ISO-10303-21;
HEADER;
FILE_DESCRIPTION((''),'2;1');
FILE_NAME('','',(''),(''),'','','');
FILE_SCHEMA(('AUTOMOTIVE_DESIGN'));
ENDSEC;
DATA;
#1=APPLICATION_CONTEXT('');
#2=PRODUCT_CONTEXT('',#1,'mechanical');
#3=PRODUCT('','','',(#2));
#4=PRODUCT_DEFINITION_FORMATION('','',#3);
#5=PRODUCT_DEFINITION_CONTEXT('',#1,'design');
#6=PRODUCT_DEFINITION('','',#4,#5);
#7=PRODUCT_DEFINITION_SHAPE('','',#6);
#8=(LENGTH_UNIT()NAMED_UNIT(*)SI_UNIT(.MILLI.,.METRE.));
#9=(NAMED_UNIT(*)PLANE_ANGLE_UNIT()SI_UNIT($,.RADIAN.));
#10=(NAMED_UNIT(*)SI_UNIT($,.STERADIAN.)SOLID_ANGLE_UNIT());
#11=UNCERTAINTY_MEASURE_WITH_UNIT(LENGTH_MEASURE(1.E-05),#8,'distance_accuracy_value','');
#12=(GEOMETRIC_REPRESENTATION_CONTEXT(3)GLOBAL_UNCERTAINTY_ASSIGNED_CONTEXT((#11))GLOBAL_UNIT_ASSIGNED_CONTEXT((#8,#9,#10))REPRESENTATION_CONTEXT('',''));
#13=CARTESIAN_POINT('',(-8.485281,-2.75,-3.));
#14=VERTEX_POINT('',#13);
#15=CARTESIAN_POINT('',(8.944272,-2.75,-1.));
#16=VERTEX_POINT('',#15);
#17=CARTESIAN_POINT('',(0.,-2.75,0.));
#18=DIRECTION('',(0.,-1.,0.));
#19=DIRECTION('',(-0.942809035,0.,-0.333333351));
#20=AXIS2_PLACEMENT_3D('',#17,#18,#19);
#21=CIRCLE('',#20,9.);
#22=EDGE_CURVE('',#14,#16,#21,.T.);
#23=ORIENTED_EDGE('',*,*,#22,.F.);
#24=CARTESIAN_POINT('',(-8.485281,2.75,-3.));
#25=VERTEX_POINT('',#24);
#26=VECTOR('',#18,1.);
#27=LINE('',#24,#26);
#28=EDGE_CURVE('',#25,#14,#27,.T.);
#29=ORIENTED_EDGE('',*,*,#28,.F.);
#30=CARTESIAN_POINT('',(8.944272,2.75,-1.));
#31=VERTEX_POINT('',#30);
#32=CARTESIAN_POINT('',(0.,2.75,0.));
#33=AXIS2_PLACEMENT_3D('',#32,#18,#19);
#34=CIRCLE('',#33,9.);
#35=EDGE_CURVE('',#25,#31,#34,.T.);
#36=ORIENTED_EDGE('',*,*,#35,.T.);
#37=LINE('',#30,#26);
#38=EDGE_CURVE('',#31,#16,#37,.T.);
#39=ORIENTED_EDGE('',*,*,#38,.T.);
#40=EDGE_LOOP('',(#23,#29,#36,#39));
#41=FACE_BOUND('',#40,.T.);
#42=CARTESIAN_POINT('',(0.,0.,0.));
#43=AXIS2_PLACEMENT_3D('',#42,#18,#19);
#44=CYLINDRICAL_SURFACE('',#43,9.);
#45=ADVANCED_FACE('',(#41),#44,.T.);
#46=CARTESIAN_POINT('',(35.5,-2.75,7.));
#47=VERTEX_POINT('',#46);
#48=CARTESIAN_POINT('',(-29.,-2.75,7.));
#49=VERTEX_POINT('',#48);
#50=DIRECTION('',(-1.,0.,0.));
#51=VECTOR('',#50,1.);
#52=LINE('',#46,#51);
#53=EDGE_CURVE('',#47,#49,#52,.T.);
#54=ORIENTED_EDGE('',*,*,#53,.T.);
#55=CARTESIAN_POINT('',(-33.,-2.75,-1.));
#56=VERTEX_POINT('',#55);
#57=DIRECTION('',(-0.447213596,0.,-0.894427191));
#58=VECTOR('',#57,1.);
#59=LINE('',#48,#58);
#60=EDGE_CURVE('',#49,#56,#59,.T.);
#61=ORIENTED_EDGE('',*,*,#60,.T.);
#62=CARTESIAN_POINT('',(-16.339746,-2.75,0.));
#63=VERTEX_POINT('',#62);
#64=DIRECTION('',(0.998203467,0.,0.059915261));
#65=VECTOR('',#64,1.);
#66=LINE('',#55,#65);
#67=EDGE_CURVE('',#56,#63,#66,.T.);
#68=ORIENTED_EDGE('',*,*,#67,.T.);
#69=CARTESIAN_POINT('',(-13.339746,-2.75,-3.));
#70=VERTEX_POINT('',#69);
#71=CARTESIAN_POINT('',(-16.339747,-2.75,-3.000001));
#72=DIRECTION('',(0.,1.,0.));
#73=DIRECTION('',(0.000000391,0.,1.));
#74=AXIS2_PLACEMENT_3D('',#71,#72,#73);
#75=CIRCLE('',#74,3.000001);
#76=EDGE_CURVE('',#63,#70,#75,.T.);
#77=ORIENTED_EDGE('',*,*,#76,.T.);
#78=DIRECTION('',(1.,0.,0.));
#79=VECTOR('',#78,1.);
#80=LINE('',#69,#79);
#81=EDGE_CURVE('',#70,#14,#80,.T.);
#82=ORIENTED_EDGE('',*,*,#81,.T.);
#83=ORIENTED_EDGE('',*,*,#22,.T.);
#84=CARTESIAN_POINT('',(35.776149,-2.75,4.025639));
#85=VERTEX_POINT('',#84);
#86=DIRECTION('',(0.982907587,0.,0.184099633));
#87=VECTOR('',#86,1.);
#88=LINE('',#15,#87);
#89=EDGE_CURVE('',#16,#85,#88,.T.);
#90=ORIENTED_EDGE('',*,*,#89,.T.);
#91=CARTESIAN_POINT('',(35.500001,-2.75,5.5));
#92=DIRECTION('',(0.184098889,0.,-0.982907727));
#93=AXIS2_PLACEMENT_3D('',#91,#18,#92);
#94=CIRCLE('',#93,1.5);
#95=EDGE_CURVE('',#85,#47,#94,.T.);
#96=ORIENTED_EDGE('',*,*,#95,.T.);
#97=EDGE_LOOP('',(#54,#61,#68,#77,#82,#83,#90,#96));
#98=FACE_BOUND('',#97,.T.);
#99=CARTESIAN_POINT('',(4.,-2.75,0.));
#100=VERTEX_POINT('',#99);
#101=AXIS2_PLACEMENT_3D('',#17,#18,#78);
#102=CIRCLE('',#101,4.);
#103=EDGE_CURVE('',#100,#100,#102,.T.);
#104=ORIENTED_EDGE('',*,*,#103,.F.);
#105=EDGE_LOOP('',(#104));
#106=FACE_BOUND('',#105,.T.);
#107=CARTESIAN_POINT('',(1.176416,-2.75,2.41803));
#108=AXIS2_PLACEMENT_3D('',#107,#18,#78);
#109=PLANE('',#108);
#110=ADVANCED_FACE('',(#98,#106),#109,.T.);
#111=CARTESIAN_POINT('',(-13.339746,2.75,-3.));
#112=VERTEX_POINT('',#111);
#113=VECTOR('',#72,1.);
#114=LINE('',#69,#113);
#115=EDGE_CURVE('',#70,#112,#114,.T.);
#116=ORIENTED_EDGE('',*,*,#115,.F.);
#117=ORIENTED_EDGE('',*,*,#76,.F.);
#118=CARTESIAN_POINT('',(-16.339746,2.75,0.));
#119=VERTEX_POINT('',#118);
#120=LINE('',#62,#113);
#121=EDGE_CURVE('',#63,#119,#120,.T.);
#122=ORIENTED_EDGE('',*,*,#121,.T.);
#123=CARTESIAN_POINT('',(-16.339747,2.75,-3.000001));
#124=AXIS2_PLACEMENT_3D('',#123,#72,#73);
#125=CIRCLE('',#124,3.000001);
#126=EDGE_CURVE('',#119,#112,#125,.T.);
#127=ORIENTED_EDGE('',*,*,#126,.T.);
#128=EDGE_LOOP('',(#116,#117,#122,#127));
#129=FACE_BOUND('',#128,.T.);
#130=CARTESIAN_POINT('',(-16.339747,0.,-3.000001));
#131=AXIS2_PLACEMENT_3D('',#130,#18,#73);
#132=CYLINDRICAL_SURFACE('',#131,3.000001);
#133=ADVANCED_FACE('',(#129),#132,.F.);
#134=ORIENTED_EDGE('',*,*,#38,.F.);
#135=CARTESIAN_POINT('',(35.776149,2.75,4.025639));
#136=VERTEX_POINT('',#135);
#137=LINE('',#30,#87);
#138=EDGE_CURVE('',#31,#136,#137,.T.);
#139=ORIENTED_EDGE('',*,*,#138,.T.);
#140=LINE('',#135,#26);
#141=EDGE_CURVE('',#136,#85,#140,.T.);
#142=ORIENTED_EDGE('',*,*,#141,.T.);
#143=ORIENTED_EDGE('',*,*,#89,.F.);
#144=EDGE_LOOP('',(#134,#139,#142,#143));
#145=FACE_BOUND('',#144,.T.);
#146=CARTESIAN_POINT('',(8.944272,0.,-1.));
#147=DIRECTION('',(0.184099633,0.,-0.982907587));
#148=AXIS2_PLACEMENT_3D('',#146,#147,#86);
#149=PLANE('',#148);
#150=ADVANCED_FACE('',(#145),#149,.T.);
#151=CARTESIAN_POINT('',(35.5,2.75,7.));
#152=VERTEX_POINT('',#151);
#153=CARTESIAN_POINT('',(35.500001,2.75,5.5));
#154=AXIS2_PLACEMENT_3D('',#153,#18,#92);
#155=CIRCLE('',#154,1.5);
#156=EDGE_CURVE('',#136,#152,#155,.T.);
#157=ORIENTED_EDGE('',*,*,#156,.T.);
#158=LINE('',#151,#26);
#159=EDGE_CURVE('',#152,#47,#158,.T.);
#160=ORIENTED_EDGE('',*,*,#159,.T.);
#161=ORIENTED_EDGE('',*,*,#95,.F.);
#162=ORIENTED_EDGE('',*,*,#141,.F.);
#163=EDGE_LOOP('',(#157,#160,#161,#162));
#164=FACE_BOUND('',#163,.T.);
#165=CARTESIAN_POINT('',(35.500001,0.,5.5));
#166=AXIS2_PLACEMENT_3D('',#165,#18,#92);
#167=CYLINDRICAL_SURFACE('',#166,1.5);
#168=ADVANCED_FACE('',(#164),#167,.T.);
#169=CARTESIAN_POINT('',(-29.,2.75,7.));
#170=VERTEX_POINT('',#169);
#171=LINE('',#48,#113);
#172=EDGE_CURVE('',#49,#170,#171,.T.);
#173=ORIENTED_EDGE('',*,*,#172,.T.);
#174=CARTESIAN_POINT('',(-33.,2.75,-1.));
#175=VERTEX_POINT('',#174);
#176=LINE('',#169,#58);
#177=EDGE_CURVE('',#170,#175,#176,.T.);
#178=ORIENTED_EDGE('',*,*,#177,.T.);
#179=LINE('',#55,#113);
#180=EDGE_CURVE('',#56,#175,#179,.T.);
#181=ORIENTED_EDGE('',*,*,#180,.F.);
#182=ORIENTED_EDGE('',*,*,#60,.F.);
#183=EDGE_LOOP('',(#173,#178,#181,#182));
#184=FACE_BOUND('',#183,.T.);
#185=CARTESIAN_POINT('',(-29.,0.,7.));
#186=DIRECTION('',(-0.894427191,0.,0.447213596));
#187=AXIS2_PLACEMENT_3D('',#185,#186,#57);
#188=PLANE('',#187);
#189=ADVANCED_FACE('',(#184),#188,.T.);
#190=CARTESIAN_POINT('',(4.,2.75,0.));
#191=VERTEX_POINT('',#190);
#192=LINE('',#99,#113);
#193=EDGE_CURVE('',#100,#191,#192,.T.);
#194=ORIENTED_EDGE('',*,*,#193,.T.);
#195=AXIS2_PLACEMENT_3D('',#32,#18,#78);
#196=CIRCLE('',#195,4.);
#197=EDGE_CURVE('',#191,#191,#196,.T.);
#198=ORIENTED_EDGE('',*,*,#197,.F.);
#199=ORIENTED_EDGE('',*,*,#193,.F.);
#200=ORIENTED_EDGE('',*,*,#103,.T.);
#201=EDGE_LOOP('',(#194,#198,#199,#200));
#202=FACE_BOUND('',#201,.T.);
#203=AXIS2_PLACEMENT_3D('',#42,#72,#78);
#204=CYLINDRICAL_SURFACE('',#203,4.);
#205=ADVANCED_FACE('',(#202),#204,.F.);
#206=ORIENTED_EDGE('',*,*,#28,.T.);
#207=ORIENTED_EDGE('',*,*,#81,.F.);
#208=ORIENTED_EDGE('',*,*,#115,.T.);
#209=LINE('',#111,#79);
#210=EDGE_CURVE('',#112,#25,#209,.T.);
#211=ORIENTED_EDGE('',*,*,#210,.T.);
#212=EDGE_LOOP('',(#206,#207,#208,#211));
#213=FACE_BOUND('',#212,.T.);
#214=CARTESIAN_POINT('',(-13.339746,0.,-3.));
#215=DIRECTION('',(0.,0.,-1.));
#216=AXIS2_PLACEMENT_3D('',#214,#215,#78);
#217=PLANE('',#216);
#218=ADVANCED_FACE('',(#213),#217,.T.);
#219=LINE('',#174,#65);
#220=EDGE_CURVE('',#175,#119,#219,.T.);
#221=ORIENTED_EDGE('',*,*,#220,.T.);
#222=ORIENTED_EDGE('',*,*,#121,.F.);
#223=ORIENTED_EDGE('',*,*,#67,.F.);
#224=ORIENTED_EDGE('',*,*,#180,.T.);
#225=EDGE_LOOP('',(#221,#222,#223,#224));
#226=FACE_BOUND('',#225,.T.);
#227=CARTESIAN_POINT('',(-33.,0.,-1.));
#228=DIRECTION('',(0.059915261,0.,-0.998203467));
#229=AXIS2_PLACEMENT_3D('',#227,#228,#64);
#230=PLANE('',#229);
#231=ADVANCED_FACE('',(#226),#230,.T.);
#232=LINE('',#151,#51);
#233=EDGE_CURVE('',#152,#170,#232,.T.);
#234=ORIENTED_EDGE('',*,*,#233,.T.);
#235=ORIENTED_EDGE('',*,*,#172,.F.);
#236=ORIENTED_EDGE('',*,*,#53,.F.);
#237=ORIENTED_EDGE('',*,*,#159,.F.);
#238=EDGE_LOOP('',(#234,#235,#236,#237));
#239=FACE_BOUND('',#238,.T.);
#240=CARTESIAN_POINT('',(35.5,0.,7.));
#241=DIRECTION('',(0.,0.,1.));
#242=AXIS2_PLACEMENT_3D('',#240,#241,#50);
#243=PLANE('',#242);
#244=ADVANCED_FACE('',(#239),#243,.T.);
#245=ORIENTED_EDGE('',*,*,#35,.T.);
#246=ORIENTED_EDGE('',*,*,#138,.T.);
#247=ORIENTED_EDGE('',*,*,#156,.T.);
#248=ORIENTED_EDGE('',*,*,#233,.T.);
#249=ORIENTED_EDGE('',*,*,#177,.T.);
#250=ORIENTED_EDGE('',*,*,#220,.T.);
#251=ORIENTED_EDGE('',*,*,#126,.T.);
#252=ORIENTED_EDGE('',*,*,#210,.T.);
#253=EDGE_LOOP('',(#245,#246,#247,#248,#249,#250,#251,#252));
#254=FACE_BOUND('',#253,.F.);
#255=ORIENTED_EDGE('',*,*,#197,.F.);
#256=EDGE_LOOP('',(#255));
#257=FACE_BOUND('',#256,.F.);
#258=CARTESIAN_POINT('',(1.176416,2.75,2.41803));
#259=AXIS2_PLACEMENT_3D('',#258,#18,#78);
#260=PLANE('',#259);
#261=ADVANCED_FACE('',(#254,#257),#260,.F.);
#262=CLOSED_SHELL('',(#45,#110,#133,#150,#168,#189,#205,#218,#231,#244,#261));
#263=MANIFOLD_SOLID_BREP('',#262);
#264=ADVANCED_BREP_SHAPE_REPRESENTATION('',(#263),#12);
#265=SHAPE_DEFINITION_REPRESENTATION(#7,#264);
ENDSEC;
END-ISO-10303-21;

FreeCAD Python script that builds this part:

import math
import FreeCAD as App
import Part
import Sketcher

V = App.Vector

doc = App.newDocument("Part")
params = doc.addObject("Spreadsheet::Sheet", "Params")
for row, (alias, value) in enumerate([
    ("sketch1_diameter", "8 mm"),
    ("sketch1_radius", "9 mm"),
    ("sketch1_radius2", "3.000001 mm"),
    ("sketch1_radius3", "1.5 mm"),
    ("sketch1_width", "64.5 mm"),
    ("pad1_length", "5.5 mm"),
], start=1):
    params.set(f"A{row}", alias)
    params.set(f"B{row}", "=" + value)
    params.setAlias(f"B{row}", alias)

body = doc.addObject("PartDesign::Body", "Body")

sketch1 = body.newObject("Sketcher::SketchObject", "Sketch")
sketch1.AttachmentSupport = (doc.getObject("XZ_Plane"), [""])
sketch1.MapMode = "FlatFace"
sketch1.addGeometry([
    Part.LineSegment(V(-13.3, -3, 0), V(-8.5, -3, 0)),
    Part.ArcOfCircle(Part.Circle(V(0, 0, 0), V(0, 0, 1), 9), math.radians(-161), math.radians(-6)),
    Part.LineSegment(V(8.9, -1, 0), V(35.8, 4, 0)),
    Part.ArcOfCircle(Part.Circle(V(35.5, 5.5, 0), V(0, 0, 1), 1.5), math.radians(-79), math.radians(90)),
    Part.LineSegment(V(35.5, 7, 0), V(-29, 7, 0)),
    Part.LineSegment(V(-29, 7, 0), V(-33, -1, 0)),
    Part.LineSegment(V(-33, -1, 0), V(-16.3, 0, 0)),
    Part.ArcOfCircle(Part.Circle(V(-16.3, -3, 0), V(0, 0, 1), 3), math.radians(0), math.radians(90)),
    Part.Circle(V(0, 0, 0), V(0, 0, 1), 4),
], False)
sketch1.addConstraint([
    Sketcher.Constraint("Coincident", 0, 2, 1, 1),
    Sketcher.Constraint("Coincident", 1, 2, 2, 1),
    Sketcher.Constraint("Tangent", 2, 2, 3, 1),
    Sketcher.Constraint("Tangent", 3, 2, 4, 1),
    Sketcher.Constraint("Coincident", 4, 2, 5, 1),
    Sketcher.Constraint("Coincident", 5, 2, 6, 1),
    Sketcher.Constraint("Coincident", 6, 2, 7, 2),
    Sketcher.Constraint("Coincident", 7, 1, 0, 1),
    Sketcher.Constraint("Horizontal", 0),
    Sketcher.Constraint("Horizontal", 4),
    Sketcher.Constraint("Coincident", 1, 3, -1, 1),
    Sketcher.Constraint("Coincident", 8, 3, -1, 1),
    Sketcher.Constraint("PointOnObject", 6, 2, -1),
    Sketcher.Constraint("Horizontal", 7, 3, 0, 2),
    Sketcher.Constraint("Horizontal", 1, 2, 5, 2),
    Sketcher.Constraint("Vertical", 7, 3, 6, 2),
    Sketcher.Constraint("Diameter", 8, 8.0),
    Sketcher.Constraint("Radius", 1, 9.0),
    Sketcher.Constraint("Radius", 7, 3.000001),
    Sketcher.Constraint("Radius", 3, 1.5),
    Sketcher.Constraint("DistanceX", 4, 2, 4, 1, 64.5),
    Sketcher.Constraint("DistanceY", 1, 2, -1, 1, 1.0),
    Sketcher.Constraint("DistanceY", -1, 1, 3, 2, 7.0),
    Sketcher.Constraint("DistanceX", 4, 2, -1, 1, 29.0),
    Sketcher.Constraint("DistanceX", 5, 2, -1, 1, 33.0),
    Sketcher.Constraint("Distance", 6, 16.690239),
])
sketch1.setExpression("Constraints[16]", "Params.sketch1_diameter")
sketch1.setExpression("Constraints[17]", "Params.sketch1_radius")
sketch1.setExpression("Constraints[18]", "Params.sketch1_radius2")
sketch1.setExpression("Constraints[19]", "Params.sketch1_radius3")
sketch1.setExpression("Constraints[20]", "Params.sketch1_width")
pad1 = body.newObject("PartDesign::Pad", "Pad")
pad1.Profile = sketch1
pad1.setExpression("Length", "Params.pad1_length")
pad1.Midplane = True

doc.recompute()
